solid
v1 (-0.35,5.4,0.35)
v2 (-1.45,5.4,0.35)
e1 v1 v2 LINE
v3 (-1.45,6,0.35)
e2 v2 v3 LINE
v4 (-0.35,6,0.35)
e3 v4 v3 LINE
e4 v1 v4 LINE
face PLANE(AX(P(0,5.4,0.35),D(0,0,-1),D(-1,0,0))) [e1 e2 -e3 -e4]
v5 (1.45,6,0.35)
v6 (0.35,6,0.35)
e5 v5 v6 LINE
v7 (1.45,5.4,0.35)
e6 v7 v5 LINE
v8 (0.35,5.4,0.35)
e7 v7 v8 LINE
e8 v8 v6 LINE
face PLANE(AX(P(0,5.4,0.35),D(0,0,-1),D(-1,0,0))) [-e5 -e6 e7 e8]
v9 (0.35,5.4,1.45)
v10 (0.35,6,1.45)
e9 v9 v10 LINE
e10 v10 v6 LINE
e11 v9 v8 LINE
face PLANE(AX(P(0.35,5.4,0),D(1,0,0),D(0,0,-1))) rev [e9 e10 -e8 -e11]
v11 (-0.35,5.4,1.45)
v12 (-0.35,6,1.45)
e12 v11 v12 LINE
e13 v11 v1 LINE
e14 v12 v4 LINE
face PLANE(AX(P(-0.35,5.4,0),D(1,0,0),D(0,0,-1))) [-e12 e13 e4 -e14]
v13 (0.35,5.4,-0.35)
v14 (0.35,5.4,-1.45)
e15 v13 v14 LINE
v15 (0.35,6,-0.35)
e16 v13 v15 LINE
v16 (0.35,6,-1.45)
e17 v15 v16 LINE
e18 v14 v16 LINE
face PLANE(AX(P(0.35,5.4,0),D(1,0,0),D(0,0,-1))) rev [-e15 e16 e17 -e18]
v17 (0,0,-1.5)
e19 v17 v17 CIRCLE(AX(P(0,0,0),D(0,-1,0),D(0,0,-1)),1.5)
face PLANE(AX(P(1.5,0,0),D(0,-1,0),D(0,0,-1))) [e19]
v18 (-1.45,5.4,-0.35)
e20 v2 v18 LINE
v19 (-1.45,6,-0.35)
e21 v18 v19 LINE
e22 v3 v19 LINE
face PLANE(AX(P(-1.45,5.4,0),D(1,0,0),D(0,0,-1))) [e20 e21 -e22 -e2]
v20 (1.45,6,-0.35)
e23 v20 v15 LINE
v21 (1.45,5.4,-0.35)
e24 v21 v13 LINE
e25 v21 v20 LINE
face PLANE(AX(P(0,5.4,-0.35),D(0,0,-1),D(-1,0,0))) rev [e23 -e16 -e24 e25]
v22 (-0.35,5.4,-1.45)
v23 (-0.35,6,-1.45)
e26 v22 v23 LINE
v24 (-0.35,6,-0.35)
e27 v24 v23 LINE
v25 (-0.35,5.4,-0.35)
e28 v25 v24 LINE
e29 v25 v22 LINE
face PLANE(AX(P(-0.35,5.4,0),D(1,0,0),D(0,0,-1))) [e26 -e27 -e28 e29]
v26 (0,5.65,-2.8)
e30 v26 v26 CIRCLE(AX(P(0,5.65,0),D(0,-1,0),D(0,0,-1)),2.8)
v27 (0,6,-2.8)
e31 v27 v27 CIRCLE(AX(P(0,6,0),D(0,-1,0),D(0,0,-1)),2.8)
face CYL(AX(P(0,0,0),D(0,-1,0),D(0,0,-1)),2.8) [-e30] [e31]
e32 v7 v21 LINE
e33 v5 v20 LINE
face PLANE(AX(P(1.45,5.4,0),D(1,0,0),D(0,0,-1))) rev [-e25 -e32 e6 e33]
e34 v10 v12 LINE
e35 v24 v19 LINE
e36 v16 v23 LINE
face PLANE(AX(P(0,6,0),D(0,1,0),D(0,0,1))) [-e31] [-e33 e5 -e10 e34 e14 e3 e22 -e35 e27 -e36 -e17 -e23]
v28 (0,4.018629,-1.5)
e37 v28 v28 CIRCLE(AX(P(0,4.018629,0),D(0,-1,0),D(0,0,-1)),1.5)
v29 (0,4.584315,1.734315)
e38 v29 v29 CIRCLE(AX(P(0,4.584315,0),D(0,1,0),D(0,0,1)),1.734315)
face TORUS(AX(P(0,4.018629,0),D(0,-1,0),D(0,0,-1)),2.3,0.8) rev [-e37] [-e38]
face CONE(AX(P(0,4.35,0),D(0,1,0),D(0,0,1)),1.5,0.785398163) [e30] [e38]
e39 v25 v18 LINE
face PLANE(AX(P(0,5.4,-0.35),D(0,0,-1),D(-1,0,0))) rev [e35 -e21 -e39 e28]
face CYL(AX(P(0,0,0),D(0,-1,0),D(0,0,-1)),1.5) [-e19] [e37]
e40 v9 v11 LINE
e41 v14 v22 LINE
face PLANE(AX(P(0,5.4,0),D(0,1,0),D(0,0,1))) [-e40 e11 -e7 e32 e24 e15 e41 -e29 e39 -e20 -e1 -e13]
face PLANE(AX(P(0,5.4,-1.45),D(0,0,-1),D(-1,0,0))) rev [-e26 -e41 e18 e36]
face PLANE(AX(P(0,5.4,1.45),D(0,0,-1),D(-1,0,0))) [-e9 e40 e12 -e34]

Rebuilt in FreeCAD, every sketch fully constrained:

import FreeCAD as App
import Part
import Sketcher

V = App.Vector
Q = App.Units.Quantity


def edges_at(feature, points):
    """Names of the edges that pass closest to the given points."""
    edges = feature.Shape.Edges
    near = lambda p: min(range(len(edges)), key=lambda i: edges[i].distToShape(Part.Vertex(*p))[0])
    return sorted({f"Edge{near(p) + 1}" for p in points})


def add_polygon(sketch, points):
    """Adds a closed chain of lines whose ends are joined by coincident constraints."""
    first, n = sketch.GeometryCount, len(points)
    for a, b in zip(points, points[1:] + points[:1]):
        sketch.addGeometry(Part.LineSegment(App.Vector(*a, 0), App.Vector(*b, 0)), False)
    for i in range(n):
        sketch.addConstraint(Sketcher.Constraint("Coincident", first + i, 2, first + (i + 1) % n, 1))

doc = App.newDocument("Part")
body = doc.addObject("PartDesign::Body", "Body")

# Sketch on XY plane
sketch1 = body.newObject("Sketcher::SketchObject", "Sketch")
sketch1.AttachmentSupport = (doc.getObject("XY_Plane"), [""])
sketch1.MapMode = "FlatFace"
add_polygon(sketch1, [(0, 6), (0, 0), (1.5, 0), (1.5, 4.35), (2.8, 5.65), (2.8, 6)])  # lines 0-5
sketch1.addConstraint(Sketcher.Constraint("Vertical", 0))
sketch1.addConstraint(Sketcher.Constraint("Horizontal", 1))
sketch1.addConstraint(Sketcher.Constraint("Vertical", 2))
sketch1.addConstraint(Sketcher.Constraint("Vertical", 4))
sketch1.addConstraint(Sketcher.Constraint("Horizontal", 5))
sketch1.addConstraint(Sketcher.Constraint("Coincident", 0, 2, -1, 1))
sketch1.addConstraint(Sketcher.Constraint("DistanceY", 0, 2, 0, 1, 6.0))
sketch1.addConstraint(Sketcher.Constraint("Angle", 3, Q("45 deg")))
sketch1.addConstraint(Sketcher.Constraint("DistanceX", 1, 1, 1, 2, 1.5))
sketch1.addConstraint(Sketcher.Constraint("DistanceX", 5, 2, 5, 1, 2.8))
sketch1.addConstraint(Sketcher.Constraint("DistanceY", 2, 1, 2, 2, 4.35))
revolution = body.newObject("PartDesign::Revolution", "Revolution")
revolution.Profile = sketch1
revolution.ReferenceAxis = (sketch1, ["V_Axis"])
revolution.Angle = 360
doc.recompute()

fillet = body.newObject("PartDesign::Fillet", "Fillet")
fillet.Base = (revolution, edges_at(revolution, [(-1.5, 4.35, 0)]))
fillet.Radius = 0.8

# Sketch on XZ plane
sketch2 = body.newObject("Sketcher::SketchObject", "Sketch001")
sketch2.AttachmentSupport = (doc.getObject("XZ_Plane"), [""])
sketch2.MapMode = "FlatFace"
sketch2.AttachmentOffset = App.Placement(V(0, 0, -6), App.Rotation())
add_polygon(sketch2, [(-1.45, -0.35), (-1.45, 0.35), (-0.35, 0.35), (-0.35, 1.45), (0.35, 1.45), (0.35, 0.35), (1.45, 0.35), (1.45, -0.35), (0.35, -0.35), (0.35, -1.45), (-0.35, -1.45), (-0.35, -0.35)])  # lines 0-11
sketch2.addConstraint(Sketcher.Constraint("Vertical", 0))
sketch2.addConstraint(Sketcher.Constraint("Horizontal", 1))
sketch2.addConstraint(Sketcher.Constraint("Vertical", 2))
sketch2.addConstraint(Sketcher.Constraint("Horizontal", 3))
sketch2.addConstraint(Sketcher.Constraint("Vertical", 4))
sketch2.addConstraint(Sketcher.Constraint("Horizontal", 5))
sketch2.addConstraint(Sketcher.Constraint("Vertical", 6))
sketch2.addConstraint(Sketcher.Constraint("Horizontal", 7))
sketch2.addConstraint(Sketcher.Constraint("Vertical", 8))
sketch2.addConstraint(Sketcher.Constraint("Horizontal", 9))
sketch2.addConstraint(Sketcher.Constraint("Vertical", 10))
sketch2.addConstraint(Sketcher.Constraint("Horizontal", 11))
sketch2.addConstraint(Sketcher.Constraint("Symmetric", 0, 2, 6, 2, -1, 1))
sketch2.addConstraint(Sketcher.Constraint("Symmetric", 2, 2, 8, 2, -1, 1))
sketch2.addConstraint(Sketcher.Constraint("Symmetric", 4, 2, 10, 2, -1, 1))
sketch2.addConstraint(Sketcher.Constraint("Symmetric", 1, 2, 4, 2, -2))
sketch2.addConstraint(Sketcher.Constraint("Equal", 9, 0))
sketch2.addConstraint(Sketcher.Constraint("Equal", 11, 2))
sketch2.addConstraint(Sketcher.Constraint("DistanceX", 1, 1, 1, 2, 1.1))
sketch2.addConstraint(Sketcher.Constraint("DistanceX", 3, 1, 3, 2, 0.7))
pocket1 = body.newObject("PartDesign::Pocket", "Pocket")
pocket1.Profile = sketch2
pocket1.Length = 0.6
pocket1.Reversed = True

doc.recompute()
